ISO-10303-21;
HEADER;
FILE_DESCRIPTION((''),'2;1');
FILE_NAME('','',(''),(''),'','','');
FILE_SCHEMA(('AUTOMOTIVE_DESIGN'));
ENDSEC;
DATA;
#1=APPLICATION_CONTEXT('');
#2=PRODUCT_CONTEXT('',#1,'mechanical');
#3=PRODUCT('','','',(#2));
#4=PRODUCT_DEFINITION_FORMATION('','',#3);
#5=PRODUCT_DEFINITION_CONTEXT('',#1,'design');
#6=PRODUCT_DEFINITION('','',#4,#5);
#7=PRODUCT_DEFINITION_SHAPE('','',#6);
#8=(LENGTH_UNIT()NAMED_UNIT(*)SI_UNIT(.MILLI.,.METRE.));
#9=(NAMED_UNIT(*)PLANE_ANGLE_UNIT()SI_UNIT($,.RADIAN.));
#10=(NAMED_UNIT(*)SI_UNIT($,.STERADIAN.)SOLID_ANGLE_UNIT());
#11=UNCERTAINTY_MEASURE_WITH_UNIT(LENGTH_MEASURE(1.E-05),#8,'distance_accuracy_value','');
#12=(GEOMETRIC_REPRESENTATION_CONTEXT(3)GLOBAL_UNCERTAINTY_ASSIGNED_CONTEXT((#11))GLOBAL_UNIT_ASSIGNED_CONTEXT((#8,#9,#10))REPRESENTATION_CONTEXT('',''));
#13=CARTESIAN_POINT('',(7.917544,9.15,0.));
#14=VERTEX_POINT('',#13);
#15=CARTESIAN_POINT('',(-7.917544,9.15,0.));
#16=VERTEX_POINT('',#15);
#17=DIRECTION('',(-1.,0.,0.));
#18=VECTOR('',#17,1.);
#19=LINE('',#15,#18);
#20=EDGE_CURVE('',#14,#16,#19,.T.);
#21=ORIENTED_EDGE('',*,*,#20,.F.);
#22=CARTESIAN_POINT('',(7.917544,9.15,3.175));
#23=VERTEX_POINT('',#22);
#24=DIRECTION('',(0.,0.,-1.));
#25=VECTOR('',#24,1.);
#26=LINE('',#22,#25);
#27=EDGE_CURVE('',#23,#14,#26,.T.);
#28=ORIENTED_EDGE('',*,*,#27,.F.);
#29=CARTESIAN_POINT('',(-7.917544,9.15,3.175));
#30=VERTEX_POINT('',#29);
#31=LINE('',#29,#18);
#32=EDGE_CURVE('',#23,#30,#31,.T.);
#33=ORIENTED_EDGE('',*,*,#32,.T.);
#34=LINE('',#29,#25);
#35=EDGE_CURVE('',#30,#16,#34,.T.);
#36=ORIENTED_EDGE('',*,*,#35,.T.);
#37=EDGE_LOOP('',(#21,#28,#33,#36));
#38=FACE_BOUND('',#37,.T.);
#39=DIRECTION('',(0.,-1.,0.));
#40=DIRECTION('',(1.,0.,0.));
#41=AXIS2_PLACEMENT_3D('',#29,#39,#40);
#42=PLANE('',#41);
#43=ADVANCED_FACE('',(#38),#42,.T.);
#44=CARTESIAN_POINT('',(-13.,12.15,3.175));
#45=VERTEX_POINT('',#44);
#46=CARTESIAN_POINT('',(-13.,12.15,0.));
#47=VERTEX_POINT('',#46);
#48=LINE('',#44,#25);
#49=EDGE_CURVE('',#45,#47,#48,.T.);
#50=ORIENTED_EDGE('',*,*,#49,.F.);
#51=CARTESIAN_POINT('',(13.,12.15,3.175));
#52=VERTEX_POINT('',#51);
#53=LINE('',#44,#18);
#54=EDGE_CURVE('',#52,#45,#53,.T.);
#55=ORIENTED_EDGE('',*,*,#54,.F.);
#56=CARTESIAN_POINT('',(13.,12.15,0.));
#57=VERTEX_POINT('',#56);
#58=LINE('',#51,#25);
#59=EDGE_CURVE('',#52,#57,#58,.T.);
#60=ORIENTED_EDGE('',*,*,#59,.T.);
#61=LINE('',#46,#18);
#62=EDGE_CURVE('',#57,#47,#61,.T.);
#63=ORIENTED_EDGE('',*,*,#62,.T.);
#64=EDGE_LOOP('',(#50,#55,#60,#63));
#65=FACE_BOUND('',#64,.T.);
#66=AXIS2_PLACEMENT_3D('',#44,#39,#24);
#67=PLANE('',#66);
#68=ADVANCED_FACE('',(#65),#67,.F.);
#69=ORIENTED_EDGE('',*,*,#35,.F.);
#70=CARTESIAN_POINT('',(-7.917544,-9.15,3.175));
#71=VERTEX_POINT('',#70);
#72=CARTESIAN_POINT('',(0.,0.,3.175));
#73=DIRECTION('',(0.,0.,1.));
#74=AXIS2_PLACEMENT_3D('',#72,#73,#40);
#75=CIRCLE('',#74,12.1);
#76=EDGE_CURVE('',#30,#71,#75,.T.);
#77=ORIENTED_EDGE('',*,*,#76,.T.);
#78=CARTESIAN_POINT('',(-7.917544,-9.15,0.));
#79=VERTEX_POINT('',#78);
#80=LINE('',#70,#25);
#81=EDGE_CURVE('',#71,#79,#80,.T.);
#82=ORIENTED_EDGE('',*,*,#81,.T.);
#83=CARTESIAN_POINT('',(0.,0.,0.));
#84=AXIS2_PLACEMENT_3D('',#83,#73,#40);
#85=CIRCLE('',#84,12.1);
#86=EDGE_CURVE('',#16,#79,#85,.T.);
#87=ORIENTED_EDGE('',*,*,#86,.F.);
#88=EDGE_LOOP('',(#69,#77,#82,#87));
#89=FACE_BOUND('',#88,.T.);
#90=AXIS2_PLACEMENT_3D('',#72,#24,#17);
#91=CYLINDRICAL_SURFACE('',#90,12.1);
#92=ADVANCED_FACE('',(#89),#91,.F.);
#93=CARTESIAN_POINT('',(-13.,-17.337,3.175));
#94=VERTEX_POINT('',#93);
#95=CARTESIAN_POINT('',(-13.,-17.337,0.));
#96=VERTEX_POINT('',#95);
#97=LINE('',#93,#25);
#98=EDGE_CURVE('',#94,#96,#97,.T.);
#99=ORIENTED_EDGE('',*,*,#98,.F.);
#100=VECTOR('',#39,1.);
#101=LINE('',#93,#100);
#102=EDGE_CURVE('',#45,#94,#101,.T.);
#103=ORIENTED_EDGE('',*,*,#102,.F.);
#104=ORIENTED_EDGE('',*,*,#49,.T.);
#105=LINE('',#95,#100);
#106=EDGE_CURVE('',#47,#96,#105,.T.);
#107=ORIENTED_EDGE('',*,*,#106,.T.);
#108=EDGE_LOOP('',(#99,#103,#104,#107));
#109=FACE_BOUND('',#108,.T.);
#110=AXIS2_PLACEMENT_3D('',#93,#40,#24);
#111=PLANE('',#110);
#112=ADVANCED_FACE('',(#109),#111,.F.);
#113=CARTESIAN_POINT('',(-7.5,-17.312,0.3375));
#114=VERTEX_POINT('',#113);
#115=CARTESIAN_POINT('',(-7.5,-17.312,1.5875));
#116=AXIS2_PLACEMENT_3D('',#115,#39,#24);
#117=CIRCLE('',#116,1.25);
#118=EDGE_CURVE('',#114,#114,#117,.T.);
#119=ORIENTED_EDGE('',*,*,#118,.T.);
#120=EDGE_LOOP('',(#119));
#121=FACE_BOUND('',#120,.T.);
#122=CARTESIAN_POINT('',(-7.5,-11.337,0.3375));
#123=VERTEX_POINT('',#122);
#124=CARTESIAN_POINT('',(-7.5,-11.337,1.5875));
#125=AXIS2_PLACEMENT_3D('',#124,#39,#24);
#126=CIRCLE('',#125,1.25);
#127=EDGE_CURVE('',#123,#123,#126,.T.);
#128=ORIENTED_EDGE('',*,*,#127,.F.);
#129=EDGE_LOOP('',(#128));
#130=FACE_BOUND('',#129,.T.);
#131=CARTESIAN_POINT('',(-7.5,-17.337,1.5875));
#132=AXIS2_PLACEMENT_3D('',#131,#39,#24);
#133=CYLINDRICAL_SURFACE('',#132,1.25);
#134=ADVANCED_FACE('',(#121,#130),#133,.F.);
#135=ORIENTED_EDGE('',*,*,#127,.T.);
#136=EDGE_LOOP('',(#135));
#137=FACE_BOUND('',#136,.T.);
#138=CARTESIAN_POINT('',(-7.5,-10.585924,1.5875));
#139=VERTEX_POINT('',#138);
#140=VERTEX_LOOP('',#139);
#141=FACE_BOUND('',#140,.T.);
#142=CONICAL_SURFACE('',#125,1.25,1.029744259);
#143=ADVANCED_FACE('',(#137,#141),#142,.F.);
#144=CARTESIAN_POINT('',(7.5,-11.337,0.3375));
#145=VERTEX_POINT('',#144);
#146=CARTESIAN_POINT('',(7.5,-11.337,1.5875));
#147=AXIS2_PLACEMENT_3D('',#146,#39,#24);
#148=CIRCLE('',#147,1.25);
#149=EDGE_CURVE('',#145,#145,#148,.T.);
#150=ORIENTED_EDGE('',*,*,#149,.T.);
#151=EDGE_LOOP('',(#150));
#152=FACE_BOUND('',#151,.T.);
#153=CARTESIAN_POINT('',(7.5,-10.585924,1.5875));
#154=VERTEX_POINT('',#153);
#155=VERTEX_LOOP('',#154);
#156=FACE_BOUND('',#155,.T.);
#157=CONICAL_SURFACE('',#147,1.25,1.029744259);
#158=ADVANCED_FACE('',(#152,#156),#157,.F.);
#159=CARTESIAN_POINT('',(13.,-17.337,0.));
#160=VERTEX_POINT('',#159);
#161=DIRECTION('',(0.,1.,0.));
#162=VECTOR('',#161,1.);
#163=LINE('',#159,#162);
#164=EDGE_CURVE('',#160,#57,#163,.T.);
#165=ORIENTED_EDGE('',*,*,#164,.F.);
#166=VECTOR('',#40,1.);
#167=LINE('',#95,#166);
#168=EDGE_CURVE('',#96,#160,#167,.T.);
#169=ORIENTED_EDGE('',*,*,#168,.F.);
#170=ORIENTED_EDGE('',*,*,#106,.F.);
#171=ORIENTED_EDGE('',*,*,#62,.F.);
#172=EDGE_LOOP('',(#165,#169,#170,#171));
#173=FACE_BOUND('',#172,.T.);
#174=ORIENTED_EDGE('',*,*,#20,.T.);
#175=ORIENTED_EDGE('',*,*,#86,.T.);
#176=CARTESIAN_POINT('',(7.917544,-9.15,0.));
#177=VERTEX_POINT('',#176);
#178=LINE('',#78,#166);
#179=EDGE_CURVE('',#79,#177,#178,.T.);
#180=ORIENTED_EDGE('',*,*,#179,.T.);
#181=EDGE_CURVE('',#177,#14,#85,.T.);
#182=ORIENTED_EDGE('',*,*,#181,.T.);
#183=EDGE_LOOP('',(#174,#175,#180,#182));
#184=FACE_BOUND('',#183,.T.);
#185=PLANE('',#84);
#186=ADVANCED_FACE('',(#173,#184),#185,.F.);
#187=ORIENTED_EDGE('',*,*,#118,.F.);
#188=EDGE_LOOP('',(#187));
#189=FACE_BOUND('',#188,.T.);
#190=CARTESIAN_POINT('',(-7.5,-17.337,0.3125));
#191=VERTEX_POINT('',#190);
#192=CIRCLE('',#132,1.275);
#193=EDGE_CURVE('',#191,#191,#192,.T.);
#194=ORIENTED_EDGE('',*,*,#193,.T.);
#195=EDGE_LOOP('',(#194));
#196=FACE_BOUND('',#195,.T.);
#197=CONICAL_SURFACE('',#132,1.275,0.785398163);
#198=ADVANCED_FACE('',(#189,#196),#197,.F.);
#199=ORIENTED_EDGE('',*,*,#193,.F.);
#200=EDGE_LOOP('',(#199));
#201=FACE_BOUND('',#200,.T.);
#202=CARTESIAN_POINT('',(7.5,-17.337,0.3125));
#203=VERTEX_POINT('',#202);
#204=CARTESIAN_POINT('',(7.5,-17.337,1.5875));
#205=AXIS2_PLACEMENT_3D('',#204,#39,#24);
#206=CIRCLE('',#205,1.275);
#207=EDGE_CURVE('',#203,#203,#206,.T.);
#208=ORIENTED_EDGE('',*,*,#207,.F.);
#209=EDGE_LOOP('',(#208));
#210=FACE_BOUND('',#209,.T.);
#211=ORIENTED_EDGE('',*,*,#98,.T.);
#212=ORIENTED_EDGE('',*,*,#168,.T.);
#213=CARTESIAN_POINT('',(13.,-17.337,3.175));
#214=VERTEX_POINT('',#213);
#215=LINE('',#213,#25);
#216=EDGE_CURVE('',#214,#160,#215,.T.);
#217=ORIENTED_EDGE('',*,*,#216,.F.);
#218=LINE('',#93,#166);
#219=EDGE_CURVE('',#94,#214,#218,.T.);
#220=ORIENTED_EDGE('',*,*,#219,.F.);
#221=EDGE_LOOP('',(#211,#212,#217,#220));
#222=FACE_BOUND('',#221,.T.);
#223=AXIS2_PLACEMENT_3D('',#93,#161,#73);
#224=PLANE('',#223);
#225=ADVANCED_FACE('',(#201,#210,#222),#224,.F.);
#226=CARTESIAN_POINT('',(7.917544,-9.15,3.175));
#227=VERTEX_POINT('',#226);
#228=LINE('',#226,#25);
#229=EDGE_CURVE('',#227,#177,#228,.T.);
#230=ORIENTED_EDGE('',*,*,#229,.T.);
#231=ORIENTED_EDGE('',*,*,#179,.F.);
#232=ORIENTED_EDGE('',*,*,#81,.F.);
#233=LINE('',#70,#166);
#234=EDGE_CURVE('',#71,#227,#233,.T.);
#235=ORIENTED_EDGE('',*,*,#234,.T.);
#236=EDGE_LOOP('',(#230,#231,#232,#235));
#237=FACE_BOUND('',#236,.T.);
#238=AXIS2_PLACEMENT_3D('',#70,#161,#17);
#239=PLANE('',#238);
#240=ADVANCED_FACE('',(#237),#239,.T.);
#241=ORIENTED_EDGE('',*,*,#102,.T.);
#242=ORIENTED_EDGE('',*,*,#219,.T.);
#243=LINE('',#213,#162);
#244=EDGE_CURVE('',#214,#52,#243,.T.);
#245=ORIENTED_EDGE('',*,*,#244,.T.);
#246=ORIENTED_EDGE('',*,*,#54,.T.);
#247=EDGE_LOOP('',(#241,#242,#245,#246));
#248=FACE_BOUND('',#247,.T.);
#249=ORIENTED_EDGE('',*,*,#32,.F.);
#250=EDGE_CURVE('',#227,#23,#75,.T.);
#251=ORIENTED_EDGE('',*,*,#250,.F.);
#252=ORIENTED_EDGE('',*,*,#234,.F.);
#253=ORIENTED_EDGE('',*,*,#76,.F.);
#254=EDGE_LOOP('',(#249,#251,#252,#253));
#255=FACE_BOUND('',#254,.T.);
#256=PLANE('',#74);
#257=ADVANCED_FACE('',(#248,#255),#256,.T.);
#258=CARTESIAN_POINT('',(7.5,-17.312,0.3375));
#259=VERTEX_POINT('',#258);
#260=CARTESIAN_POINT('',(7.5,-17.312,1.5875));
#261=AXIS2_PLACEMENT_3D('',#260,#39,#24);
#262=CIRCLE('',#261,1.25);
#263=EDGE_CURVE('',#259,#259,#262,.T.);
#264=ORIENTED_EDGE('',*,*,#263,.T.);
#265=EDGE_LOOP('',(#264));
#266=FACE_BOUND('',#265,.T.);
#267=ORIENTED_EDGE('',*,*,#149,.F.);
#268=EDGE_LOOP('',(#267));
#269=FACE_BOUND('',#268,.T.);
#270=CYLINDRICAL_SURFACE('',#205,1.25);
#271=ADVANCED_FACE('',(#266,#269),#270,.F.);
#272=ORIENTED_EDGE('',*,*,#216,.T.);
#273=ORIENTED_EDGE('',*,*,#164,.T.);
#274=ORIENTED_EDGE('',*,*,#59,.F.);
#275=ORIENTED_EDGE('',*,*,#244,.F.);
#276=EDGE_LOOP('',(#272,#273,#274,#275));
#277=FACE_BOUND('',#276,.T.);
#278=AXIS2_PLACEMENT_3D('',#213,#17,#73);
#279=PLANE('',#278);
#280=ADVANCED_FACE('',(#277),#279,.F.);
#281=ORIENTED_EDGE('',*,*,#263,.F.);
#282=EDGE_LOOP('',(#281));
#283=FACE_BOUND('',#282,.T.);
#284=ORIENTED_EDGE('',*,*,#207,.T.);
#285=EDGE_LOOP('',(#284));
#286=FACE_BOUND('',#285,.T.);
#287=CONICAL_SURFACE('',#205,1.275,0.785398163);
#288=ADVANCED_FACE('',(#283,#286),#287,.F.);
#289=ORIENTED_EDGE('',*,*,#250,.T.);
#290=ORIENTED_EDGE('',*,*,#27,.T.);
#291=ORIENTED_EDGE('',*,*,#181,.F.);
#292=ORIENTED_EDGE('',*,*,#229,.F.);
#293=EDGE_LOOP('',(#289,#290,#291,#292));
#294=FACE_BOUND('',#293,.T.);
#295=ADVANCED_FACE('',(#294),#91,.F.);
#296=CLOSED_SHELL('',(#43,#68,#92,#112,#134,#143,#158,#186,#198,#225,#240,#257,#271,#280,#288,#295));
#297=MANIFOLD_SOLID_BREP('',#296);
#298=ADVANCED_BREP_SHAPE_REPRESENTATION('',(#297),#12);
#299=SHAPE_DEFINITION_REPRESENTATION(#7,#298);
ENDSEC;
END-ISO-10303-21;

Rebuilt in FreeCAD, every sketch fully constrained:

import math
import FreeCAD as App
import Part
import Sketcher

V = App.Vector
Q = App.Units.Quantity

doc = App.newDocument("Part")
params = doc.addObject("Spreadsheet::Sheet", "Params")
for row, (alias, value) in enumerate([
    ("sketch1_width", "26 mm"),
    ("pad1_length", "3.175 mm"),
    ("sketch2_radius", "12.1 mm"),
    ("sketch3_diameter", "2.5 mm"),
    ("hole_diameter", "2.5 mm"),
    ("hole_depth", "6 mm"),
    ("hole_csink_diameter", "2.55 mm"),
], start=1):
    params.set(f"A{row}", alias)
    params.set(f"B{row}", "=" + value)
    params.setAlias(f"B{row}", alias)

body = doc.addObject("PartDesign::Body", "Body")

sketch1 = body.newObject("Sketcher::SketchObject", "Sketch")
sketch1.AttachmentSupport = (doc.getObject("XY_Plane"), [""])
sketch1.MapMode = "FlatFace"
sketch1.addGeometry(Part.LineSegment(V(-13, -17, 0), V(13, -17, 0)), False)
sketch1.addGeometry(Part.LineSegment(V(13, -17, 0), V(13, 12, 0)), False)
sketch1.addGeometry(Part.LineSegment(V(13, 12, 0), V(-13, 12, 0)), False)
sketch1.addGeometry(Part.LineSegment(V(-13, 12, 0), V(-13, -17, 0)), False)
sketch1.addConstraint(Sketcher.Constraint("Coincident", 0, 2, 1, 1))
sketch1.addConstraint(Sketcher.Constraint("Coincident", 1, 2, 2, 1))
sketch1.addConstraint(Sketcher.Constraint("Coincident", 2, 2, 3, 1))
sketch1.addConstraint(Sketcher.Constraint("Coincident", 3, 2, 0, 1))
sketch1.addConstraint(Sketcher.Constraint("Horizontal", 0))
sketch1.addConstraint(Sketcher.Constraint("Vertical", 1))
sketch1.addConstraint(Sketcher.Constraint("Horizontal", 2))
sketch1.addConstraint(Sketcher.Constraint("Vertical", 3))
sketch1.addConstraint(Sketcher.Constraint("DistanceX", 0, 1, 0, 2, Q("26 mm")))
sketch1.addConstraint(Sketcher.Constraint("DistanceX", -1, 1, 0, 2, Q("13 mm")))
sketch1.addConstraint(Sketcher.Constraint("DistanceY", 1, 1, 1, 2, Q("29.487 mm")))
sketch1.addConstraint(Sketcher.Constraint("DistanceY", -1, 1, 1, 2, Q("12.15 mm")))
sketch1.setExpression("Constraints[8]", "Params.sketch1_width")
pad1 = body.newObject("PartDesign::Pad", "Pad")
pad1.Profile = sketch1
pad1.setExpression("Length", "Params.pad1_length")

sketch2 = body.newObject("Sketcher::SketchObject", "Sketch001")
sketch2.AttachmentSupport = (doc.getObject("XY_Plane"), [""])
sketch2.MapMode = "FlatFace"
sketch2.addGeometry(Part.LineSegment(V(-8, -9, 0), V(8, -9, 0)), False)
sketch2.addGeometry(Part.ArcOfCircle(Part.Circle(V(0, 0, 0), V(0, 0, 1), 12), math.radians(-49), math.radians(49)), False)
sketch2.addGeometry(Part.LineSegment(V(8, 9, 0), V(-8, 9, 0)), False)
sketch2.addGeometry(Part.ArcOfCircle(Part.Circle(V(0, 0, 0), V(0, 0, 1), 12), math.radians(131), math.radians(229)), False)
sketch2.addConstraint(Sketcher.Constraint("Coincident", 0, 2, 1, 1))
sketch2.addConstraint(Sketcher.Constraint("Coincident", 1, 2, 2, 1))
sketch2.addConstraint(Sketcher.Constraint("Coincident", 2, 2, 3, 1))
sketch2.addConstraint(Sketcher.Constraint("Coincident", 3, 2, 0, 1))
sketch2.addConstraint(Sketcher.Constraint("Horizontal", 0))
sketch2.addConstraint(Sketcher.Constraint("Horizontal", 2))
sketch2.addConstraint(Sketcher.Constraint("Coincident", 1, 3, -1, 1))
sketch2.addConstraint(Sketcher.Constraint("Coincident", 3, 3, -1, 1))
sketch2.addConstraint(Sketcher.Constraint("Equal", 1, 3))
sketch2.addConstraint(Sketcher.Constraint("Vertical", 0, 2, 1, 2))
sketch2.addConstraint(Sketcher.Constraint("Radius", 1, Q("12.1 mm")))
sketch2.addConstraint(Sketcher.Constraint("DistanceY", 0, 2, 1, 2, Q("18.3 mm")))
sketch2.setExpression("Constraints[10]", "Params.sketch2_radius")
pocket1 = body.newObject("PartDesign::Pocket", "Pocket")
pocket1.Profile = sketch2
pocket1.Type = "ThroughAll"
pocket1.Reversed = True

sketch3 = body.newObject("Sketcher::SketchObject", "Sketch002")
sketch3.AttachmentSupport = (doc.getObject("XZ_Plane"), [""])
sketch3.MapMode = "FlatFace"
sketch3.AttachmentOffset = App.Placement(V(0, 0, 17.337), App.Rotation())
sketch3.addGeometry(Part.Circle(V(7.5, 1.6, 0), V(0, 0, 1), 1.2), False)
sketch3.addGeometry(Part.Circle(V(-7.5, 1.6, 0), V(0, 0, 1), 1.2), False)
sketch3.addConstraint(Sketcher.Constraint("Equal", 0, 1))
sketch3.addConstraint(Sketcher.Constraint("Symmetric", 0, 3, 1, 3, -2))
sketch3.addConstraint(Sketcher.Constraint("Diameter", 0, Q("2.5 mm")))
sketch3.addConstraint(Sketcher.Constraint("DistanceX", 1, 3, 0, 3, Q("15 mm")))
sketch3.addConstraint(Sketcher.Constraint("DistanceY", -1, 1, 0, 3, Q("1.5875 mm")))
sketch3.setExpression("Constraints[2]", "Params.sketch3_diameter")
doc.recompute()
hole = body.newObject("PartDesign::Hole", "Hole")
hole.Profile = sketch3
hole.ThreadType = "None"
hole.setExpression("Diameter", "Params.hole_diameter")
hole.DepthType = "Dimension"
hole.setExpression("Depth", "Params.hole_depth")
hole.DrillPoint = "Angled"
hole.DrillPointAngle = 118
hole.HoleCutType = "Countersink"
hole.setExpression("HoleCutDiameter", "Params.hole_csink_diameter")
hole.HoleCutCountersinkAngle = 90

doc.recompute()
